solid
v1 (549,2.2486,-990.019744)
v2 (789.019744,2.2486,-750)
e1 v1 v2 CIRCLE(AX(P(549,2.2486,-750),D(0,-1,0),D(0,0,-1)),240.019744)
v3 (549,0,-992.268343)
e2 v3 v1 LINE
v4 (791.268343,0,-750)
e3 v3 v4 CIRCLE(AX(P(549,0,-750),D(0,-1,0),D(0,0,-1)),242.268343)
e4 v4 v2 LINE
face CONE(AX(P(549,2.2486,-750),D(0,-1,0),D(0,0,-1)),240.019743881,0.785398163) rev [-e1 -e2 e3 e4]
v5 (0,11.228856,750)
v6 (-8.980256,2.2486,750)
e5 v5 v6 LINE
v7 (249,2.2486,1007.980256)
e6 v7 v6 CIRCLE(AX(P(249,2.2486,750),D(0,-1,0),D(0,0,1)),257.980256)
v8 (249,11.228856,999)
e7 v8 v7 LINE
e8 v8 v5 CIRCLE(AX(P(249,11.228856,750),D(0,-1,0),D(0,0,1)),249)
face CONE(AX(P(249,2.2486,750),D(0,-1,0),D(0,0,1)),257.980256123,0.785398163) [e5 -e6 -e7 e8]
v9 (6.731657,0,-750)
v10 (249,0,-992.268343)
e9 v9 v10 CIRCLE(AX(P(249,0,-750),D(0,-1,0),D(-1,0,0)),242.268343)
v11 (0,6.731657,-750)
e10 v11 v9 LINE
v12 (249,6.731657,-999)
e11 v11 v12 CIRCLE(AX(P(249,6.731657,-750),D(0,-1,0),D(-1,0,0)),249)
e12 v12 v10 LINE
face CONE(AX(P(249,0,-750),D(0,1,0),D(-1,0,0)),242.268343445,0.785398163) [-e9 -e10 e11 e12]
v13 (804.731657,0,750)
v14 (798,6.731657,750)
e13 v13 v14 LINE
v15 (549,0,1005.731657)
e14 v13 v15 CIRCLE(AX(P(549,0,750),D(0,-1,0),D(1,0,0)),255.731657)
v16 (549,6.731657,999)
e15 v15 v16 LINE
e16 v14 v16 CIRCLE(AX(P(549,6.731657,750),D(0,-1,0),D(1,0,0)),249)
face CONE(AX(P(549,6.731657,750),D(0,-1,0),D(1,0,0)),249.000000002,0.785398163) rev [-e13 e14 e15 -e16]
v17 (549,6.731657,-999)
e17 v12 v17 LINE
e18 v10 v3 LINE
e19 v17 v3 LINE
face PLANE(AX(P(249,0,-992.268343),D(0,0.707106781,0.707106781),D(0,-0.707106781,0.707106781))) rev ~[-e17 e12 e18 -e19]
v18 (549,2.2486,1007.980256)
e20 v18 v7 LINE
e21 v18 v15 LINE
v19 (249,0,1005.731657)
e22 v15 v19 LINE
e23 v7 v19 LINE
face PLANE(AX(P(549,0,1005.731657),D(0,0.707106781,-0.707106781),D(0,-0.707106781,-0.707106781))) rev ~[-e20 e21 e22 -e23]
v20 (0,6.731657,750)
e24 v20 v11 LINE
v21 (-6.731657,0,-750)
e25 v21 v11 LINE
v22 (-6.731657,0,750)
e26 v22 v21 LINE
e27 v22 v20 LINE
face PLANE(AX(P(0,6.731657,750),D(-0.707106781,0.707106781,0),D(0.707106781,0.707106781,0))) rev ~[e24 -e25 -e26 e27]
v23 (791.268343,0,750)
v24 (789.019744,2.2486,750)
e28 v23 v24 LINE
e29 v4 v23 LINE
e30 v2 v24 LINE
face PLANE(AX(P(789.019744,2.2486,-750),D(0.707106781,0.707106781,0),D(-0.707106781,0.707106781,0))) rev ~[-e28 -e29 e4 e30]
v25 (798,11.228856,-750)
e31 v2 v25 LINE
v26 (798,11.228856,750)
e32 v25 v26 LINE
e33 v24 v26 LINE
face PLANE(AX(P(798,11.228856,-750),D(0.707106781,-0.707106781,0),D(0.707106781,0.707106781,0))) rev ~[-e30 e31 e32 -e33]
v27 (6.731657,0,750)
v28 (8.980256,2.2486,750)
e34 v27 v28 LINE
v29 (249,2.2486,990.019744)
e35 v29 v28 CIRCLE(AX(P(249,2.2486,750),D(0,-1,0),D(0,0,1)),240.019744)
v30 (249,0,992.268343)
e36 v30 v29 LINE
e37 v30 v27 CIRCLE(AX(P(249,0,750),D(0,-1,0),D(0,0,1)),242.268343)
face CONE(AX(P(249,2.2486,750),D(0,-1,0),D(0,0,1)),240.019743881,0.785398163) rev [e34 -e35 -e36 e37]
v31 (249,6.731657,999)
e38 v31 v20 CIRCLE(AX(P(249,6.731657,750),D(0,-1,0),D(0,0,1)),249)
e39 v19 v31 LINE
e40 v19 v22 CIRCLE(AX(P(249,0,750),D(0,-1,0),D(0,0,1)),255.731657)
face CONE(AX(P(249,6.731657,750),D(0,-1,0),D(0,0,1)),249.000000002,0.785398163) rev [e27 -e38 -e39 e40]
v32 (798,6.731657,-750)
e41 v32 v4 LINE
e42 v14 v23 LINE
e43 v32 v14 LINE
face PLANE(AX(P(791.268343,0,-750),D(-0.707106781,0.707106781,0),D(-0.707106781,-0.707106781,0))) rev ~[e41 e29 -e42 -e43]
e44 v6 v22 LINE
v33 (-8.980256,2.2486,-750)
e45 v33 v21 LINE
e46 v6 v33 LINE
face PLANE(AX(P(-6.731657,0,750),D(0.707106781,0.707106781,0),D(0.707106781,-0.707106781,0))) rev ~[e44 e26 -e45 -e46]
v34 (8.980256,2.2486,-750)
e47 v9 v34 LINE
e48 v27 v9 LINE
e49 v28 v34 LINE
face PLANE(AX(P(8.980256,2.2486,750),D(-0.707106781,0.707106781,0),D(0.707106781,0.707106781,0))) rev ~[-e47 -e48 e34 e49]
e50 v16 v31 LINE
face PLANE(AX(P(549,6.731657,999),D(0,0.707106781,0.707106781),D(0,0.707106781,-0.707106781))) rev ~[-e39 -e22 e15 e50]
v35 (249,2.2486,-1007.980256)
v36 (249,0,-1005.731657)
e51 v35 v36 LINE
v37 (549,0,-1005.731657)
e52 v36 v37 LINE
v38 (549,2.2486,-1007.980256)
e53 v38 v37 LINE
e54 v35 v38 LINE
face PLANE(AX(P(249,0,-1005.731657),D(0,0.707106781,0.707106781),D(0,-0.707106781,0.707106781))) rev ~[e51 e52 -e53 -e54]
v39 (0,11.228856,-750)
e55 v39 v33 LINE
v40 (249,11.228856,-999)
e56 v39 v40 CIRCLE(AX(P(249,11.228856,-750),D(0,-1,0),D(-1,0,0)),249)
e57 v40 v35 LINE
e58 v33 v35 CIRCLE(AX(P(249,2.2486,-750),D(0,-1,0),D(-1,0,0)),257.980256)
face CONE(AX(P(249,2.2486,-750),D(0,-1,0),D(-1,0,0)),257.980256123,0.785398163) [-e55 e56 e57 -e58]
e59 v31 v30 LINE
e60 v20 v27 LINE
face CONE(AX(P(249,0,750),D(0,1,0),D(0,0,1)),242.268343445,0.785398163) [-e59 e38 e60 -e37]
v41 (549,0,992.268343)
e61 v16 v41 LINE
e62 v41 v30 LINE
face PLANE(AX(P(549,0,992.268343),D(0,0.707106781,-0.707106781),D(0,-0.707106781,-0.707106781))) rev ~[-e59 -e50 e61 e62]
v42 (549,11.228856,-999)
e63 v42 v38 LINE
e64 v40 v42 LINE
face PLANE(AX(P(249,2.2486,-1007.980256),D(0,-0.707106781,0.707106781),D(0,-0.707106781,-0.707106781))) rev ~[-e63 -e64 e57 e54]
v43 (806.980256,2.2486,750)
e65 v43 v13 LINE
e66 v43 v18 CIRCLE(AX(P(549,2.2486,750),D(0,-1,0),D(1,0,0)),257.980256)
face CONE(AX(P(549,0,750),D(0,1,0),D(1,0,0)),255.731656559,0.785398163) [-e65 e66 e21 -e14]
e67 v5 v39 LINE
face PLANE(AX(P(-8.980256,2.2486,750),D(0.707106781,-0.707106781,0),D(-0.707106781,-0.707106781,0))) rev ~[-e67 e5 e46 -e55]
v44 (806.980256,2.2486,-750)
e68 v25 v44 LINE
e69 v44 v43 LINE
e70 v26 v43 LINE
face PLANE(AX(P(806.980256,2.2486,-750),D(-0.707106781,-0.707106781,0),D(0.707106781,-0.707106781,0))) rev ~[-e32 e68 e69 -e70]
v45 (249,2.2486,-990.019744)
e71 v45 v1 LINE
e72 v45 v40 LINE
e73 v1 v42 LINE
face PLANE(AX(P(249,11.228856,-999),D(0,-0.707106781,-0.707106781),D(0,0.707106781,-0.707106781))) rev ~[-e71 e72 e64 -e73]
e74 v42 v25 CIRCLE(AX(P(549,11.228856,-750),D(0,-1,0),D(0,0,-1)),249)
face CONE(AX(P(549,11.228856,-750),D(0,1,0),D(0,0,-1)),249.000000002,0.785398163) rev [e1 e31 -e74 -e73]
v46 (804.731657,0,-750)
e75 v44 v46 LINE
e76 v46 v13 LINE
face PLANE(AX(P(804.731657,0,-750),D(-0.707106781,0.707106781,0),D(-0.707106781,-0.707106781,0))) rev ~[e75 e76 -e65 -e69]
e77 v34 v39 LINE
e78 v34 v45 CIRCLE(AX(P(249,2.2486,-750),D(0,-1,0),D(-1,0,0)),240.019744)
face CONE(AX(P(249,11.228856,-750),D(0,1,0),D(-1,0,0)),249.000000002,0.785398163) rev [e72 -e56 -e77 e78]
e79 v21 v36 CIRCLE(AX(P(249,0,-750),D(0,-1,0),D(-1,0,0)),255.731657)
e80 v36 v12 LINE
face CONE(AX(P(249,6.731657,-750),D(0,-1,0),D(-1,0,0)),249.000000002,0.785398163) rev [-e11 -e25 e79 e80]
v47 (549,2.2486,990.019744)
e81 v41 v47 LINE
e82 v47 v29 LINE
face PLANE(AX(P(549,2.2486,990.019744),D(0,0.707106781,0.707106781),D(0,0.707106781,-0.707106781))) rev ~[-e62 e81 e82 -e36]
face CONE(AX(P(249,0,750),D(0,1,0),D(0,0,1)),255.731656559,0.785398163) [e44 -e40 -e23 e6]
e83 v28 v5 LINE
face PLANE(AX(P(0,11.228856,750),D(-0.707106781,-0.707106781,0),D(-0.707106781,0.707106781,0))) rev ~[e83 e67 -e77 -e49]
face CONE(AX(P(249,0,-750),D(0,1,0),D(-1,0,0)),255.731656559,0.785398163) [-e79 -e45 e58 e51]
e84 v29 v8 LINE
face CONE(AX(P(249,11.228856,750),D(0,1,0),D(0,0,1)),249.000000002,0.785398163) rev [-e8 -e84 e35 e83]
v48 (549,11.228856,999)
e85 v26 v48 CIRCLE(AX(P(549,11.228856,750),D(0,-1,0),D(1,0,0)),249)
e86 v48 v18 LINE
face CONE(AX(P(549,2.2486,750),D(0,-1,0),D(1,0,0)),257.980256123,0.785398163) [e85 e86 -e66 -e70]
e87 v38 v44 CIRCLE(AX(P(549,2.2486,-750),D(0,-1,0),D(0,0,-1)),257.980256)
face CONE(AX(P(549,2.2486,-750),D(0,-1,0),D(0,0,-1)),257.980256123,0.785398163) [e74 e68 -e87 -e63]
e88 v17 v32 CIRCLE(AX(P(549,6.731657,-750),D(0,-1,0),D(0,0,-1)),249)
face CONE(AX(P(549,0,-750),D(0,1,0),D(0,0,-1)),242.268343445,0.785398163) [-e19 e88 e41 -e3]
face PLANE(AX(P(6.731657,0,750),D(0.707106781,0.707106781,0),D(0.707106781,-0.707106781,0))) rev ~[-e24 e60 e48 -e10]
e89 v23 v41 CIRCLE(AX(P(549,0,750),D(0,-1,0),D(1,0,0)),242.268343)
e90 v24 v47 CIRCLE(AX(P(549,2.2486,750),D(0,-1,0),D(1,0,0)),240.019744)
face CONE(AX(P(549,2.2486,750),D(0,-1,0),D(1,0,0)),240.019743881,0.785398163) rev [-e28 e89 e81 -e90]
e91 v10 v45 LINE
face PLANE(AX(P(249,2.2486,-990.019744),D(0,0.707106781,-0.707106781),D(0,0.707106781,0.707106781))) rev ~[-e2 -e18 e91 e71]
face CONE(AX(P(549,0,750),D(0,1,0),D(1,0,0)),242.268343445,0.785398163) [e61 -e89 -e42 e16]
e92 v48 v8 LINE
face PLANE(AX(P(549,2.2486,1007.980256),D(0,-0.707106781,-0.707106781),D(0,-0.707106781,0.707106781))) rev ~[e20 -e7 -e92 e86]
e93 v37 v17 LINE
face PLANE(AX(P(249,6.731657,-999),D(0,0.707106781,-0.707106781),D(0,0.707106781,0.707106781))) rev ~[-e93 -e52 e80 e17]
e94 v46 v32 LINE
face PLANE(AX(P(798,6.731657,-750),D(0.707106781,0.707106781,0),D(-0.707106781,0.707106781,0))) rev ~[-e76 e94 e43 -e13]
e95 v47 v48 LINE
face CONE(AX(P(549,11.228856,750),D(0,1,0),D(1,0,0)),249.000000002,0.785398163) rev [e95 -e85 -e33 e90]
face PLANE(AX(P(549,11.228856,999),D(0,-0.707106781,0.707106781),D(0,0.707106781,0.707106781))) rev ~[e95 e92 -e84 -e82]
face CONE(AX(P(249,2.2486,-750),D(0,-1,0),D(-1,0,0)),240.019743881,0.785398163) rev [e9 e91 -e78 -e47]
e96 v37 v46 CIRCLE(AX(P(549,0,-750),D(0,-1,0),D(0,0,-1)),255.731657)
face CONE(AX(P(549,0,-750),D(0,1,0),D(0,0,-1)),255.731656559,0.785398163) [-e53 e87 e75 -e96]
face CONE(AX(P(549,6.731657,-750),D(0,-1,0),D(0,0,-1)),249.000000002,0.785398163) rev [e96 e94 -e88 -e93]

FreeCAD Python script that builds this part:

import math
import FreeCAD as App
import Part
import Sketcher
from FreeCAD import Vector

doc = App.newDocument("Part")
body = doc.addObject("PartDesign::Body", "Body")

sketch1 = body.newObject("Sketcher::SketchObject", "Sketch")
sketch1.AttachmentSupport = (doc.getObject("XY_Plane"), [""])
sketch1.MapMode = "FlatFace"
sketch1.addGeometry([
    Part.LineSegment(Vector(8.980256, 2.2486, 0), Vector(0, 11.228856, 0)),
    Part.LineSegment(Vector(0, 11.228856, 0), Vector(-8.980256, 2.2486, 0)),
    Part.LineSegment(Vector(-8.980256, 2.2486, 0), Vector(-6.731657, 0, 0)),
    Part.LineSegment(Vector(-6.731657, 0, 0), Vector(0, 6.731657, 0)),
    Part.LineSegment(Vector(0, 6.731657, 0), Vector(6.731657, 0, 0)),
    Part.LineSegment(Vector(6.731657, 0, 0), Vector(8.980256, 2.2486, 0)),
], False)
sketch1.addConstraint([
    Sketcher.Constraint("Coincident", 0, 2, 1, 1),
    Sketcher.Constraint("Coincident", 1, 2, 2, 1),
    Sketcher.Constraint("Coincident", 2, 2, 3, 1),
    Sketcher.Constraint("Coincident", 3, 2, 4, 1),
    Sketcher.Constraint("Coincident", 4, 2, 5, 1),
    Sketcher.Constraint("Coincident", 5, 2, 0, 1),
    Sketcher.Constraint("Symmetric", 2, 2, 4, 2, -1, 1),
    Sketcher.Constraint("Symmetric", 1, 2, 5, 2, -2),
    Sketcher.Constraint("PointOnObject", 0, 2, -2),
    Sketcher.Constraint("PointOnObject", 2, 2, -1),
    Sketcher.Constraint("PointOnObject", 3, 2, -2),
    Sketcher.Constraint("Perpendicular", 0, 1),
    Sketcher.Constraint("Perpendicular", 1, 2),
    Sketcher.Constraint("Perpendicular", 2, 3),
    Sketcher.Constraint("Distance", 0, 12.7),
    Sketcher.Constraint("Distance", 2, 3.18),
])

sketch2 = body.newObject("Sketcher::SketchObject", "Sketch001")
sketch2.AttachmentSupport = (doc.getObject("XZ_Plane"), [""])
sketch2.MapMode = "FlatFace"
sketch2.addGeometry([
    Part.LineSegment(Vector(0, 750, 0), Vector(0, -750, 0)),
    Part.ArcOfCircle(Part.Circle(Vector(249, -750, 0), Vector(0, 0, 1), 249), math.radians(-180), math.radians(-90)),
    Part.LineSegment(Vector(249, -999, 0), Vector(549, -999, 0)),
    Part.ArcOfCircle(Part.Circle(Vector(549, -750, 0), Vector(0, 0, 1), 249), math.radians(-90), math.radians(0)),
    Part.LineSegment(Vector(798, -750, 0), Vector(798, 750, 0)),
    Part.ArcOfCircle(Part.Circle(Vector(549, 750, 0), Vector(0, 0, 1), 249), math.radians(0), math.radians(90)),
    Part.LineSegment(Vector(549, 999, 0), Vector(249, 999, 0)),
    Part.ArcOfCircle(Part.Circle(Vector(249, 750, 0), Vector(0, 0, 1), 249), math.radians(90), math.radians(180)),
], False)
sketch2.addConstraint([
    Sketcher.Constraint("Tangent", 0, 2, 1, 1),
    Sketcher.Constraint("Tangent", 1, 2, 2, 1),
    Sketcher.Constraint("Tangent", 2, 2, 3, 1),
    Sketcher.Constraint("Tangent", 3, 2, 4, 1),
    Sketcher.Constraint("Tangent", 4, 2, 5, 1),
    Sketcher.Constraint("Tangent", 5, 2, 6, 1),
    Sketcher.Constraint("Tangent", 6, 2, 7, 1),
    Sketcher.Constraint("Tangent", 7, 2, 0, 1),
    Sketcher.Constraint("Vertical", 0),
    Sketcher.Constraint("Horizontal", 2),
    Sketcher.Constraint("Vertical", 4),
    Sketcher.Constraint("Horizontal", 6),
    Sketcher.Constraint("Equal", 1, 3),
    Sketcher.Constraint("Equal", 3, 5),
    Sketcher.Constraint("Equal", 5, 7),
    Sketcher.Constraint("Symmetric", 0, 2, 7, 2, -1, 1),
    Sketcher.Constraint("Radius", 1, 249.0),
    Sketcher.Constraint("DistanceX", 2, 1, 2, 2, 300.0),
    Sketcher.Constraint("DistanceY", 0, 2, 0, 1, 1500.0),
])
doc.recompute()

additivepipe = body.newObject("PartDesign::AdditivePipe", "AdditivePipe")
additivepipe.Profile = sketch1
additivepipe.Spine = (sketch2, ["Edge1", "Edge2", "Edge3", "Edge4", "Edge5", "Edge6", "Edge7", "Edge8"])

doc.recompute()
